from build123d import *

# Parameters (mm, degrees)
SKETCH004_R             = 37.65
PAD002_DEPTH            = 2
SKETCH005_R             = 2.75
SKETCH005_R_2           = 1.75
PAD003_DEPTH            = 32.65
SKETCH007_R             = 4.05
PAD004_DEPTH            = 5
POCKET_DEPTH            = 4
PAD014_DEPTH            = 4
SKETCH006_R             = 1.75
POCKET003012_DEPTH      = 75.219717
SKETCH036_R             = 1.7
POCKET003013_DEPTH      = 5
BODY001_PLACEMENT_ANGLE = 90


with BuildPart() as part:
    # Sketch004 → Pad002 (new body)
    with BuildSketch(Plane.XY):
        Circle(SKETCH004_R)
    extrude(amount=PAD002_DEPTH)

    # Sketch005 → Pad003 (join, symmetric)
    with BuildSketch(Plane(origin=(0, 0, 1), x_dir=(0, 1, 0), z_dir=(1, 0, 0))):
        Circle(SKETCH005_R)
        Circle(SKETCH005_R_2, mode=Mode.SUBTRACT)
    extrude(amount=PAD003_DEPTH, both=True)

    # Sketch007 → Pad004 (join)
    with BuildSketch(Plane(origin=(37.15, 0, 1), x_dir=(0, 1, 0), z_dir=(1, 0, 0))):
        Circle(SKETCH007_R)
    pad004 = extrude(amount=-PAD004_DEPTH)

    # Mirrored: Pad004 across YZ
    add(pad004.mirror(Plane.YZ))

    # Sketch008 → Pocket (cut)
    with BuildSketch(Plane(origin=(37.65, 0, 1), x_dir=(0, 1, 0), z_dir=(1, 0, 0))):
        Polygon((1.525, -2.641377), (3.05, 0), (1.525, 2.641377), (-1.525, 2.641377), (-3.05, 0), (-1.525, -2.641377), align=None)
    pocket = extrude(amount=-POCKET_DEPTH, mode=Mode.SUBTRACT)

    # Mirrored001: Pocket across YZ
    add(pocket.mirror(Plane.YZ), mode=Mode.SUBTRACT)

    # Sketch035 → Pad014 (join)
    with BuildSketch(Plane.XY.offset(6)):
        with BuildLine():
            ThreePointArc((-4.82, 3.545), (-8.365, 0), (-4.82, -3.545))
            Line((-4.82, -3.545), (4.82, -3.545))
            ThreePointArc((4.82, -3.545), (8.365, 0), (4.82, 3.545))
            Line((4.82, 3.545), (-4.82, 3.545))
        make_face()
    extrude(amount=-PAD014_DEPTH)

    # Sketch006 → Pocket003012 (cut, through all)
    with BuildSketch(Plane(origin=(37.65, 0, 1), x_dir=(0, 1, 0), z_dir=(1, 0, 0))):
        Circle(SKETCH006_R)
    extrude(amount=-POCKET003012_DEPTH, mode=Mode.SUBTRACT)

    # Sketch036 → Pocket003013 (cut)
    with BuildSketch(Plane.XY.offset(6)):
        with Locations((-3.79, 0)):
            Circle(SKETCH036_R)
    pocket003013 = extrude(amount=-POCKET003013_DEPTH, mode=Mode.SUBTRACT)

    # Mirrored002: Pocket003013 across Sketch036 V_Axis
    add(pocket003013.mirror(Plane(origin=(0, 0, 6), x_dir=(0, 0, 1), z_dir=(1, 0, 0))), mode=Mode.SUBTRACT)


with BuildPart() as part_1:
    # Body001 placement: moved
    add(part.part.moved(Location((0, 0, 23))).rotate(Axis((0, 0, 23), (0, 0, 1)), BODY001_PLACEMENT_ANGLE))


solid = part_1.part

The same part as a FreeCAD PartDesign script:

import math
import FreeCAD as App
import Part
import Sketcher

V = App.Vector
Q = App.Units.Quantity

doc = App.newDocument("Part")
body = doc.addObject("PartDesign::Body", "Body")

sketch1 = doc.addObject("Sketcher::SketchObject", "Sketch")
body.addObject(sketch1)
sketch1.AttachmentSupport = (doc.XY_Plane, [""])
sketch1.MapMode = "FlatFace"
sketch1.addGeometry(Part.Circle(V(0, 0, 0), V(0, 0, 1), 38), False)
sketch1.addConstraint(Sketcher.Constraint("Coincident", 0, 3, -1, 1))
sketch1.addConstraint(Sketcher.Constraint("Diameter", 0, 75.3))
pad1 = doc.addObject("PartDesign::Pad", "Pad")
body.addObject(pad1)
pad1.Profile = sketch1
pad1.Length = 2

sketch2 = doc.addObject("Sketcher::SketchObject", "Sketch001")
body.addObject(sketch2)
sketch2.AttachmentSupport = (doc.YZ_Plane, [""])
sketch2.MapMode = "FlatFace"
sketch2.addGeometry(Part.Circle(V(0, 1, 0), V(0, 0, 1), 2.8), False)
sketch2.addGeometry(Part.Circle(V(0, 1, 0), V(0, 0, 1), 1.8), False)
sketch2.addConstraint(Sketcher.Constraint("Coincident", 1, 3, 0, 3))
sketch2.addConstraint(Sketcher.Constraint("PointOnObject", 0, 3, -2))
sketch2.addConstraint(Sketcher.Constraint("Diameter", 0, 5.5))
sketch2.addConstraint(Sketcher.Constraint("Diameter", 1, 3.5))
sketch2.addConstraint(Sketcher.Constraint("DistanceY", -1, 1, 0, 3, 1.0))
pad2 = doc.addObject("PartDesign::Pad", "Pad001")
body.addObject(pad2)
pad2.Profile = sketch2
pad2.Length = 65.3
pad2.Midplane = True

sketch3 = doc.addObject("Sketcher::SketchObject", "Sketch002")
body.addObject(sketch3)
sketch3.AttachmentSupport = (doc.YZ_Plane, [""])
sketch3.MapMode = "FlatFace"
sketch3.AttachmentOffset = App.Placement(V(0, 0, 37.15), App.Rotation())
sketch3.addGeometry(Part.Circle(V(0, 1, 0), V(0, 0, 1), 4), False)
sketch3.addConstraint(Sketcher.Constraint("PointOnObject", 0, 3, -2))
sketch3.addConstraint(Sketcher.Constraint("Diameter", 0, 8.1))
sketch3.addConstraint(Sketcher.Constraint("DistanceY", -1, 1, 0, 3, 1.0))
pad3 = doc.addObject("PartDesign::Pad", "Pad002")
body.addObject(pad3)
pad3.Profile = sketch3
pad3.Length = 5
pad3.Reversed = True
doc.recompute()

mirrored = doc.addObject("PartDesign::Mirrored", "Mirrored")
body.addObject(mirrored)
mirrored.Originals = [pad3]
mirrored.MirrorPlane = (doc.YZ_Plane, [""])
body.Tip = mirrored

sketch4 = doc.addObject("Sketcher::SketchObject", "Sketch003")
body.addObject(sketch4)
sketch4.AttachmentSupport = (doc.YZ_Plane, [""])
sketch4.MapMode = "FlatFace"
sketch4.AttachmentOffset = App.Placement(V(0, 0, 37.65), App.Rotation())
sketch4.addGeometry(Part.LineSegment(V(1.5, -1.6, 0), V(3, 1, 0)), False)
sketch4.addGeometry(Part.LineSegment(V(3, 1, 0), V(1.5, 3.6, 0)), False)
sketch4.addGeometry(Part.LineSegment(V(1.5, 3.6, 0), V(-1.5, 3.6, 0)), False)
sketch4.addGeometry(Part.LineSegment(V(-1.5, 3.6, 0), V(-3, 1, 0)), False)
sketch4.addGeometry(Part.LineSegment(V(-3, 1, 0), V(-1.5, -1.6, 0)), False)
sketch4.addGeometry(Part.LineSegment(V(-1.5, -1.6, 0), V(1.5, -1.6, 0)), False)
sketch4.addConstraint(Sketcher.Constraint("Coincident", 0, 2, 1, 1))
sketch4.addConstraint(Sketcher.Constraint("Coincident", 1, 2, 2, 1))
sketch4.addConstraint(Sketcher.Constraint("Coincident", 2, 2, 3, 1))
sketch4.addConstraint(Sketcher.Constraint("Coincident", 3, 2, 4, 1))
sketch4.addConstraint(Sketcher.Constraint("Coincident", 4, 2, 5, 1))
sketch4.addConstraint(Sketcher.Constraint("Coincident", 5, 2, 0, 1))
sketch4.addConstraint(Sketcher.Constraint("Horizontal", 2))
sketch4.addConstraint(Sketcher.Constraint("Horizontal", 5))
sketch4.addConstraint(Sketcher.Constraint("Symmetric", 0, 2, 3, 2, -2))
sketch4.addConstraint(Sketcher.Constraint("Parallel", 0, 3))
sketch4.addConstraint(Sketcher.Constraint("Parallel", 1, 4))
sketch4.addConstraint(Sketcher.Constraint("Vertical", 2, 2, 4, 2))
sketch4.addConstraint(Sketcher.Constraint("Vertical", 1, 2, 5, 2))
sketch4.addConstraint(Sketcher.Constraint("Angle", 0, Q("59.999995 deg")))
sketch4.addConstraint(Sketcher.Constraint("DistanceY", -1, 1, 0, 2, 1.0))
sketch4.addConstraint(Sketcher.Constraint("DistanceX", 2, 2, 2, 1, 3.05))
sketch4.addConstraint(Sketcher.Constraint("DistanceX", 3, 2, 0, 2, 6.1))
pocket1 = doc.addObject("PartDesign::Pocket", "Pocket")
body.addObject(pocket1)
pocket1.Profile = sketch4
pocket1.Length = 4
doc.recompute()

mirrored2 = doc.addObject("PartDesign::Mirrored", "Mirrored001")
body.addObject(mirrored2)
mirrored2.Originals = [pocket1]
mirrored2.MirrorPlane = (doc.YZ_Plane, [""])
body.Tip = mirrored2

sketch5 = doc.addObject("Sketcher::SketchObject", "Sketch004")
body.addObject(sketch5)
sketch5.AttachmentSupport = (doc.XY_Plane, [""])
sketch5.MapMode = "FlatFace"
sketch5.AttachmentOffset = App.Placement(V(0, 0, 6), App.Rotation())
sketch5.addGeometry(Part.ArcOfCircle(Part.Circle(V(-4.8, 0, 0), V(0, 0, 1), 3.5), math.radians(90), math.radians(270)), False)
sketch5.addGeometry(Part.LineSegment(V(-4.8, -3.5, 0), V(4.8, -3.5, 0)), False)
sketch5.addGeometry(Part.ArcOfCircle(Part.Circle(V(4.8, 0, 0), V(0, 0, 1), 3.5), math.radians(-90), math.radians(90)), False)
sketch5.addGeometry(Part.LineSegment(V(4.8, 3.5, 0), V(-4.8, 3.5, 0)), False)
sketch5.addConstraint(Sketcher.Constraint("Tangent", 0, 2, 1, 1))
sketch5.addConstraint(Sketcher.Constraint("Tangent", 1, 2, 2, 1))
sketch5.addConstraint(Sketcher.Constraint("Tangent", 2, 2, 3, 1))
sketch5.addConstraint(Sketcher.Constraint("Tangent", 3, 2, 0, 1))
sketch5.addConstraint(Sketcher.Constraint("Horizontal", 1))
sketch5.addConstraint(Sketcher.Constraint("Horizontal", 3))
sketch5.addConstraint(Sketcher.Constraint("Symmetric", 0, 3, 2, 3, -1, 1))
sketch5.addConstraint(Sketcher.Constraint("Radius", 0, 3.545))
sketch5.addConstraint(Sketcher.Constraint("DistanceX", 1, 1, 1, 2, 9.64))
pad4 = doc.addObject("PartDesign::Pad", "Pad003")
body.addObject(pad4)
pad4.Profile = sketch5
pad4.Length = 4
pad4.Reversed = True

sketch6 = doc.addObject("Sketcher::SketchObject", "Sketch005")
body.addObject(sketch6)
sketch6.AttachmentSupport = (doc.YZ_Plane, [""])
sketch6.MapMode = "FlatFace"
sketch6.AttachmentOffset = App.Placement(V(0, 0, 37.65), App.Rotation())
sketch6.addGeometry(Part.Circle(V(0, 1, 0), V(0, 0, 1), 1.8), False)
sketch6.addConstraint(Sketcher.Constraint("PointOnObject", 0, 3, -2))
sketch6.addConstraint(Sketcher.Constraint("Diameter", 0, 3.5))
sketch6.addConstraint(Sketcher.Constraint("DistanceY", -1, 1, 0, 3, 1.0))
pocket2 = doc.addObject("PartDesign::Pocket", "Pocket001")
body.addObject(pocket2)
pocket2.Profile = sketch6
pocket2.Type = "ThroughAll"

sketch7 = doc.addObject("Sketcher::SketchObject", "Sketch006")
body.addObject(sketch7)
sketch7.AttachmentSupport = (doc.XY_Plane, [""])
sketch7.MapMode = "FlatFace"
sketch7.AttachmentOffset = App.Placement(V(0, 0, 6), App.Rotation())
sketch7.addGeometry(Part.Circle(V(-3.8, 0, 0), V(0, 0, 1), 1.7), False)
sketch7.addConstraint(Sketcher.Constraint("PointOnObject", 0, 3, -1))
sketch7.addConstraint(Sketcher.Constraint("Diameter", 0, 3.4))
sketch7.addConstraint(Sketcher.Constraint("DistanceX", 0, 3, -1, 1, 3.79))
pocket3 = doc.addObject("PartDesign::Pocket", "Pocket002")
body.addObject(pocket3)
pocket3.Profile = sketch7
pocket3.Length = 5
doc.recompute()

mirrored3 = doc.addObject("PartDesign::Mirrored", "Mirrored002")
body.addObject(mirrored3)
mirrored3.Originals = [pocket3]
mirrored3.MirrorPlane = (doc.YZ_Plane, [""])
body.Tip = mirrored3
body2 = doc.addObject("PartDesign::Body", "Body001")
doc.recompute()

body.Placement = App.Placement(V(0, 0, 23), App.Rotation(V(0, 0, 1), 90))
boolean = doc.addObject("PartDesign::Boolean", "Boolean")
body2.addObject(boolean)
boolean.Type = "Fuse"
boolean.addObjects([body])

doc.recompute()
